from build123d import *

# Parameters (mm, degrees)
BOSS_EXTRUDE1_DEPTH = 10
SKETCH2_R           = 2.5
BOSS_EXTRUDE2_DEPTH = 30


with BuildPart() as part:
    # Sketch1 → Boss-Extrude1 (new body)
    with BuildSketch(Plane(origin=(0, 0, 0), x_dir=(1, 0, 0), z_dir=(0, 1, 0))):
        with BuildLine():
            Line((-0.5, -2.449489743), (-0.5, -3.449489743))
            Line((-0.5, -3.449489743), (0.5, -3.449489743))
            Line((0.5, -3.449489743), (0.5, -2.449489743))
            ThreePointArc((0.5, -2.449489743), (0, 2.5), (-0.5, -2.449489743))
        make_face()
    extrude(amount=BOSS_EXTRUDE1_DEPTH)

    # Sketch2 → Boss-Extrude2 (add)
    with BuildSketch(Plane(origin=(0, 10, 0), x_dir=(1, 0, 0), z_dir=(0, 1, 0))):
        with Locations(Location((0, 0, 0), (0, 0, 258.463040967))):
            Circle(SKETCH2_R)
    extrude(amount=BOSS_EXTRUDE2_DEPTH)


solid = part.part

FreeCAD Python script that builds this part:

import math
import FreeCAD as App
import Part
import Sketcher
from FreeCAD import Vector

doc = App.newDocument("Part")
params = doc.addObject("Spreadsheet::Sheet", "Params")
for row, (alias, value) in enumerate([
    ("sketch1_radius", "2.5 mm"),
    ("sketch1_width", "1 mm"),
    ("pad1_length", "10 mm"),
    ("sketch2_diameter", "5 mm"),
    ("pad2_length", "30 mm"),
], start=1):
    params.set(f"A{row}", alias)
    params.set(f"B{row}", "=" + value)
    params.setAlias(f"B{row}", alias)

body = doc.addObject("PartDesign::Body", "Body")

# Sketch on XZ plane
sketch1 = body.newObject("Sketcher::SketchObject", "Sketch")
sketch1.AttachmentSupport = (doc.getObject("XZ_Plane"), [""])
sketch1.MapMode = "FlatFace"
sketch1.addGeometry(Part.LineSegment(Vector(-0.5, 2.4, 0), Vector(-0.5, 3.4, 0)), False)
sketch1.addGeometry(Part.LineSegment(Vector(-0.5, 3.4, 0), Vector(0.5, 3.4, 0)), False)
sketch1.addGeometry(Part.LineSegment(Vector(0.5, 3.4, 0), Vector(0.5, 2.4, 0)), False)
sketch1.addGeometry(Part.ArcOfCircle(Part.Circle(Vector(0, 0, 0), Vector(0, 0, 1), 2.5), math.radians(102), math.radians(438)), False)
sketch1.addConstraint(Sketcher.Constraint("Coincident", 0, 2, 1, 1))
sketch1.addConstraint(Sketcher.Constraint("Coincident", 1, 2, 2, 1))
sketch1.addConstraint(Sketcher.Constraint("Coincident", 2, 2, 3, 2))
sketch1.addConstraint(Sketcher.Constraint("Coincident", 3, 1, 0, 1))
sketch1.addConstraint(Sketcher.Constraint("Vertical", 0))
sketch1.addConstraint(Sketcher.Constraint("Horizontal", 1))
sketch1.addConstraint(Sketcher.Constraint("Vertical", 2))
sketch1.addConstraint(Sketcher.Constraint("Coincident", 3, 3, -1, 1))
sketch1.addConstraint(Sketcher.Constraint("Horizontal", 2, 2, 3, 1))
sketch1.addConstraint(Sketcher.Constraint("Equal", 1, 0))
sketch1.addConstraint(Sketcher.Constraint("Radius", 3, 2.5))
sketch1.addConstraint(Sketcher.Constraint("DistanceX", 1, 1, 1, 2, 1.0))
sketch1.setExpression("Constraints[10]", "Params.sketch1_radius")
sketch1.setExpression("Constraints[11]", "Params.sketch1_width")
pad1 = body.newObject("PartDesign::Pad", "Pad")
pad1.Profile = sketch1
pad1.setExpression("Length", "Params.pad1_length")
pad1.Reversed = True

# Sketch on XZ plane
sketch2 = body.newObject("Sketcher::SketchObject", "Sketch001")
sketch2.AttachmentSupport = (doc.getObject("XZ_Plane"), [""])
sketch2.MapMode = "FlatFace"
sketch2.AttachmentOffset = App.Placement(Vector(0, 0, -10), App.Rotation())
sketch2.addGeometry(Part.Circle(Vector(0, 0, 0), Vector(0, 0, 1), 2.5), False)
sketch2.addConstraint(Sketcher.Constraint("Coincident", 0, 3, -1, 1))
sketch2.addConstraint(Sketcher.Constraint("Diameter", 0, 5.0))
sketch2.setExpression("Constraints[1]", "Params.sketch2_diameter")
pad2 = body.newObject("PartDesign::Pad", "Pad001")
pad2.Profile = sketch2
pad2.setExpression("Length", "Params.pad2_length")
pad2.Reversed = True

doc.recompute()
